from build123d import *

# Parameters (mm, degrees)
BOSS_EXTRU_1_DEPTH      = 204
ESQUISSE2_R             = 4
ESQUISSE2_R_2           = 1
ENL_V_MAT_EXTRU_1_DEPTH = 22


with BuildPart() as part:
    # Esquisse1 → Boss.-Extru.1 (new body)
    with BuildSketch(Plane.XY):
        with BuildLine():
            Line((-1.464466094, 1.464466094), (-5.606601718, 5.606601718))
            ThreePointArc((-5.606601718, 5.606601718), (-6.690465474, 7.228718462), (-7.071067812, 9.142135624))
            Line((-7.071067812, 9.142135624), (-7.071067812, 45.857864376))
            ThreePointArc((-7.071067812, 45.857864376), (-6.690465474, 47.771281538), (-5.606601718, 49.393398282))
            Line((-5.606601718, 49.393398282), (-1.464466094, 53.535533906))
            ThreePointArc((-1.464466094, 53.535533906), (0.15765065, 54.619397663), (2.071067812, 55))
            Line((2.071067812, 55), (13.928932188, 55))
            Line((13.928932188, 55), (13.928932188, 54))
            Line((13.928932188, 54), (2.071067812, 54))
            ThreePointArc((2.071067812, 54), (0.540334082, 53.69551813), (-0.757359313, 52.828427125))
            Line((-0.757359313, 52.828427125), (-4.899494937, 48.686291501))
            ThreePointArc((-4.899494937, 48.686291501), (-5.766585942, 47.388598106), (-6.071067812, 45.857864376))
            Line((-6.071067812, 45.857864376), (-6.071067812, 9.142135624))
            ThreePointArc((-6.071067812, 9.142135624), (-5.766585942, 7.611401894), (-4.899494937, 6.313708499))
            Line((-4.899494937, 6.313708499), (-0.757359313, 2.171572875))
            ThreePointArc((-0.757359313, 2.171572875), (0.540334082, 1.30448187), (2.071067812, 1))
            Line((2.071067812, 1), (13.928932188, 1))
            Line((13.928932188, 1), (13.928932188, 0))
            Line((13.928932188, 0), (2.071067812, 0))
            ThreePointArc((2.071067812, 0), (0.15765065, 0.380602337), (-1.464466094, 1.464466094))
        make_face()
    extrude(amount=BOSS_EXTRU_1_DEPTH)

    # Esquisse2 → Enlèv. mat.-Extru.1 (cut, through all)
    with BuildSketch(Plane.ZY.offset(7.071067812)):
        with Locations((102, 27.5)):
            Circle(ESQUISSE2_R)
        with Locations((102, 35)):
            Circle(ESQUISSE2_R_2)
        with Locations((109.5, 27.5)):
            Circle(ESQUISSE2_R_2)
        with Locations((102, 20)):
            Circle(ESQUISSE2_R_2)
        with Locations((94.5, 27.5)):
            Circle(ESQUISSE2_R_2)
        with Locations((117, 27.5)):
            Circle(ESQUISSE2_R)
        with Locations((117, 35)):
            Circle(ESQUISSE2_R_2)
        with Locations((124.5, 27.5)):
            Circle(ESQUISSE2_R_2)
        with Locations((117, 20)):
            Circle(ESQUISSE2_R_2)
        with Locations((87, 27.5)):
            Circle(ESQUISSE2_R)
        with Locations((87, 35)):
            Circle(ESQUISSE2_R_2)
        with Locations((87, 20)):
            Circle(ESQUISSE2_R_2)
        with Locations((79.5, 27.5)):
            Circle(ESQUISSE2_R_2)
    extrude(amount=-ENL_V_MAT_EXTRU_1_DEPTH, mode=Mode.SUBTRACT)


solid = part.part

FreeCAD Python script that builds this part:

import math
import FreeCAD as App
import Part
import Sketcher
Q = App.Units.Quantity

doc = App.newDocument("Part")
body = doc.addObject("PartDesign::Body", "Body")

# Sketch on XY plane
sketch1 = body.newObject("Sketcher::SketchObject", "Sketch")
sketch1.AttachmentSupport = (doc.getObject("XY_Plane"), [""])
sketch1.MapMode = "FlatFace"
sketch1.addGeometry([
    Part.LineSegment(App.Vector(-5.6, 5.6, 0), App.Vector(-1.5, 1.5, 0)),  # 0
    Part.ArcOfCircle(Part.Circle(App.Vector(2.1, 5, 0), App.Vector(0, 0, 1), 5), math.radians(-135), math.radians(-90)),  # 1
    Part.LineSegment(App.Vector(2.1, 0, 0), App.Vector(13.9, 0, 0)),  # 2
    Part.LineSegment(App.Vector(13.9, 0, 0), App.Vector(13.9, 1, 0)),  # 3
    Part.LineSegment(App.Vector(13.9, 1, 0), App.Vector(2.1, 1, 0)),  # 4
    Part.ArcOfCircle(Part.Circle(App.Vector(2.1, 5, 0), App.Vector(0, 0, 1), 4), math.radians(-135), math.radians(-90)),  # 5
    Part.LineSegment(App.Vector(-0.8, 2.2, 0), App.Vector(-4.9, 6.3, 0)),  # 6
    Part.ArcOfCircle(Part.Circle(App.Vector(-2.1, 9.1, 0), App.Vector(0, 0, 1), 4), math.radians(180), math.radians(225)),  # 7
    Part.LineSegment(App.Vector(-6.1, 9.1, 0), App.Vector(-6.1, 45.9, 0)),  # 8
    Part.ArcOfCircle(Part.Circle(App.Vector(-2.1, 45.9, 0), App.Vector(0, 0, 1), 4), math.radians(135), math.radians(180)),  # 9
    Part.LineSegment(App.Vector(-4.9, 48.7, 0), App.Vector(-0.8, 52.8, 0)),  # 10
    Part.ArcOfCircle(Part.Circle(App.Vector(2.1, 50, 0), App.Vector(0, 0, 1), 4), math.radians(90), math.radians(135)),  # 11
    Part.LineSegment(App.Vector(2.1, 54, 0), App.Vector(13.9, 54, 0)),  # 12
    Part.LineSegment(App.Vector(13.9, 54, 0), App.Vector(13.9, 55, 0)),  # 13
    Part.LineSegment(App.Vector(13.9, 55, 0), App.Vector(2.1, 55, 0)),  # 14
    Part.ArcOfCircle(Part.Circle(App.Vector(2.1, 50, 0), App.Vector(0, 0, 1), 5), math.radians(90), math.radians(135)),  # 15
    Part.LineSegment(App.Vector(-1.5, 53.5, 0), App.Vector(-5.6, 49.4, 0)),  # 16
    Part.ArcOfCircle(Part.Circle(App.Vector(-2.1, 45.9, 0), App.Vector(0, 0, 1), 5), math.radians(135), math.radians(180)),  # 17
    Part.LineSegment(App.Vector(-7.1, 45.9, 0), App.Vector(-7.1, 9.1, 0)),  # 18
    Part.ArcOfCircle(Part.Circle(App.Vector(-2.1, 9.1, 0), App.Vector(0, 0, 1), 5), math.radians(-180), math.radians(-135)),  # 19
], False)
sketch1.addConstraint([
    Sketcher.Constraint("Tangent", 0, 2, 1, 1),
    Sketcher.Constraint("Tangent", 1, 2, 2, 1),
    Sketcher.Constraint("Coincident", 2, 2, 3, 1),
    Sketcher.Constraint("Coincident", 3, 2, 4, 1),
    Sketcher.Constraint("Tangent", 4, 2, 5, 2),
    Sketcher.Constraint("Tangent", 5, 1, 6, 1),
    Sketcher.Constraint("Tangent", 6, 2, 7, 2),
    Sketcher.Constraint("Tangent", 7, 1, 8, 1),
    Sketcher.Constraint("Tangent", 8, 2, 9, 2),
    Sketcher.Constraint("Tangent", 9, 1, 10, 1),
    Sketcher.Constraint("Tangent", 10, 2, 11, 2),
    Sketcher.Constraint("Tangent", 11, 1, 12, 1),
    Sketcher.Constraint("Coincident", 12, 2, 13, 1),
    Sketcher.Constraint("Coincident", 13, 2, 14, 1),
    Sketcher.Constraint("Tangent", 14, 2, 15, 1),
    Sketcher.Constraint("Tangent", 15, 2, 16, 1),
    Sketcher.Constraint("Tangent", 16, 2, 17, 1),
    Sketcher.Constraint("Tangent", 17, 2, 18, 1),
    Sketcher.Constraint("Tangent", 18, 2, 19, 1),
    Sketcher.Constraint("Tangent", 19, 2, 0, 1),
    Sketcher.Constraint("Horizontal", 2),
    Sketcher.Constraint("Vertical", 3),
    Sketcher.Constraint("Horizontal", 4),
    Sketcher.Constraint("Vertical", 8),
    Sketcher.Constraint("Horizontal", 12),
    Sketcher.Constraint("Vertical", 13),
    Sketcher.Constraint("Horizontal", 14),
    Sketcher.Constraint("Vertical", 18),
    Sketcher.Constraint("Coincident", 5, 3, 1, 3),
    Sketcher.Constraint("Coincident", 15, 3, 11, 3),
    Sketcher.Constraint("Coincident", 17, 3, 9, 3),
    Sketcher.Constraint("Coincident", 19, 3, 7, 3),
    Sketcher.Constraint("Equal", 5, 7),
    Sketcher.Constraint("Equal", 7, 9),
    Sketcher.Constraint("Equal", 9, 11),
    Sketcher.Constraint("Equal", 1, 15),
    Sketcher.Constraint("Equal", 15, 17),
    Sketcher.Constraint("PointOnObject", 1, 2, -1),
    Sketcher.Constraint("Perpendicular", 6, 10),
    Sketcher.Constraint("Vertical", 5, 3, 11, 3),
    Sketcher.Constraint("Vertical", 6, 2, 9, 1),
    Sketcher.Constraint("Vertical", 3, 2, 12, 2),
    Sketcher.Constraint("Radius", 1, Q("5 mm")),
    Sketcher.Constraint("Radius", 5, Q("4 mm")),
    Sketcher.Constraint("DistanceY", -1, 1, 11, 3, Q("50 mm")),
    Sketcher.Constraint("DistanceX", 19, 3, 2, 2, Q("16 mm")),
    Sketcher.Constraint("DistanceY", 8, 1, 8, 2, Q("36.715729 mm")),
    Sketcher.Constraint("DistanceX", 16, 2, -1, 1, Q("5.606602 mm")),
])
pad1 = body.newObject("PartDesign::Pad", "Pad")
pad1.Profile = sketch1
pad1.Length = 204

# Sketch on YZ plane
sketch2 = body.newObject("Sketcher::SketchObject", "Sketch001")
sketch2.AttachmentSupport = (doc.getObject("YZ_Plane"), [""])
sketch2.MapMode = "FlatFace"
sketch2.AttachmentOffset = App.Placement(App.Vector(0, 0, -7.071068), App.Rotation())
sketch2.addGeometry([
    Part.Circle(App.Vector(27.5, 102, 0), App.Vector(0, 0, 1), 4),  # 0
    Part.Circle(App.Vector(35, 102, 0), App.Vector(0, 0, 1), 1),  # 1
    Part.Circle(App.Vector(27.5, 109.5, 0), App.Vector(0, 0, 1), 1),  # 2
    Part.Circle(App.Vector(20, 102, 0), App.Vector(0, 0, 1), 1),  # 3
    Part.Circle(App.Vector(27.5, 94.5, 0), App.Vector(0, 0, 1), 1),  # 4
    Part.Circle(App.Vector(27.5, 117, 0), App.Vector(0, 0, 1), 4),  # 5
    Part.Circle(App.Vector(35, 117, 0), App.Vector(0, 0, 1), 1),  # 6
    Part.Circle(App.Vector(27.5, 124.5, 0), App.Vector(0, 0, 1), 1),  # 7
    Part.Circle(App.Vector(20, 117, 0), App.Vector(0, 0, 1), 1),  # 8
    Part.Circle(App.Vector(27.5, 87, 0), App.Vector(0, 0, 1), 4),  # 9
    Part.Circle(App.Vector(35, 87, 0), App.Vector(0, 0, 1), 1),  # 10
    Part.Circle(App.Vector(20, 87, 0), App.Vector(0, 0, 1), 1),  # 11
    Part.Circle(App.Vector(27.5, 79.5, 0), App.Vector(0, 0, 1), 1),  # 12
], False)
sketch2.addConstraint([
    Sketcher.Constraint("Equal", 1, 2),
    Sketcher.Constraint("Equal", 2, 3),
    Sketcher.Constraint("Equal", 3, 4),
    Sketcher.Constraint("Equal", 0, 5),
    Sketcher.Constraint("Equal", 4, 6),
    Sketcher.Constraint("Equal", 6, 7),
    Sketcher.Constraint("Equal", 7, 8),
    Sketcher.Constraint("Equal", 5, 9),
    Sketcher.Constraint("Equal", 8, 10),
    Sketcher.Constraint("Equal", 10, 11),
    Sketcher.Constraint("Equal", 11, 12),
    Sketcher.Constraint("Horizontal", 0, 3, 1, 3),
    Sketcher.Constraint("Horizontal", 1, 3, 3, 3),
    Sketcher.Constraint("Horizontal", 5, 3, 6, 3),
    Sketcher.Constraint("Horizontal", 6, 3, 8, 3),
    Sketcher.Constraint("Horizontal", 9, 3, 10, 3),
    Sketcher.Constraint("Horizontal", 10, 3, 11, 3),
    Sketcher.Constraint("Vertical", 0, 3, 2, 3),
    Sketcher.Constraint("Vertical", 2, 3, 4, 3),
    Sketcher.Constraint("Vertical", 4, 3, 5, 3),
    Sketcher.Constraint("Vertical", 1, 3, 6, 3),
    Sketcher.Constraint("Vertical", 5, 3, 7, 3),
    Sketcher.Constraint("Vertical", 3, 3, 8, 3),
    Sketcher.Constraint("Vertical", 7, 3, 9, 3),
    Sketcher.Constraint("Vertical", 6, 3, 10, 3),
    Sketcher.Constraint("Vertical", 8, 3, 11, 3),
    Sketcher.Constraint("Vertical", 9, 3, 12, 3),
    Sketcher.Constraint("Diameter", 0, Q("8 mm")),
    Sketcher.Constraint("Diameter", 1, Q("2 mm")),
    Sketcher.Constraint("DistanceY", -1, 1, 0, 3, Q("102 mm")),
    Sketcher.Constraint("DistanceX", -1, 1, 1, 3, Q("35 mm")),
    Sketcher.Constraint("DistanceX", -1, 1, 3, 3, Q("20 mm")),
    Sketcher.Constraint("DistanceY", -1, 1, 5, 3, Q("117 mm")),
    Sketcher.Constraint("DistanceY", -1, 1, 9, 3, Q("87 mm")),
    Sketcher.Constraint("DistanceY", 4, 3, 2, 3, Q("15 mm")),
    Sketcher.Constraint("DistanceY", 2, 3, 7, 3, Q("15 mm")),
    Sketcher.Constraint("DistanceY", 12, 3, 4, 3, Q("15 mm")),
    Sketcher.Constraint("DistanceX", -1, 1, 0, 3, Q("27.5 mm")),
    Sketcher.Constraint("DistanceY", -1, 1, 2, 3, Q("109.5 mm")),
])
pocket1 = body.newObject("PartDesign::Pocket", "Pocket")
pocket1.Profile = sketch2
pocket1.Type = "ThroughAll"
pocket1.Reversed = True

doc.recompute()
